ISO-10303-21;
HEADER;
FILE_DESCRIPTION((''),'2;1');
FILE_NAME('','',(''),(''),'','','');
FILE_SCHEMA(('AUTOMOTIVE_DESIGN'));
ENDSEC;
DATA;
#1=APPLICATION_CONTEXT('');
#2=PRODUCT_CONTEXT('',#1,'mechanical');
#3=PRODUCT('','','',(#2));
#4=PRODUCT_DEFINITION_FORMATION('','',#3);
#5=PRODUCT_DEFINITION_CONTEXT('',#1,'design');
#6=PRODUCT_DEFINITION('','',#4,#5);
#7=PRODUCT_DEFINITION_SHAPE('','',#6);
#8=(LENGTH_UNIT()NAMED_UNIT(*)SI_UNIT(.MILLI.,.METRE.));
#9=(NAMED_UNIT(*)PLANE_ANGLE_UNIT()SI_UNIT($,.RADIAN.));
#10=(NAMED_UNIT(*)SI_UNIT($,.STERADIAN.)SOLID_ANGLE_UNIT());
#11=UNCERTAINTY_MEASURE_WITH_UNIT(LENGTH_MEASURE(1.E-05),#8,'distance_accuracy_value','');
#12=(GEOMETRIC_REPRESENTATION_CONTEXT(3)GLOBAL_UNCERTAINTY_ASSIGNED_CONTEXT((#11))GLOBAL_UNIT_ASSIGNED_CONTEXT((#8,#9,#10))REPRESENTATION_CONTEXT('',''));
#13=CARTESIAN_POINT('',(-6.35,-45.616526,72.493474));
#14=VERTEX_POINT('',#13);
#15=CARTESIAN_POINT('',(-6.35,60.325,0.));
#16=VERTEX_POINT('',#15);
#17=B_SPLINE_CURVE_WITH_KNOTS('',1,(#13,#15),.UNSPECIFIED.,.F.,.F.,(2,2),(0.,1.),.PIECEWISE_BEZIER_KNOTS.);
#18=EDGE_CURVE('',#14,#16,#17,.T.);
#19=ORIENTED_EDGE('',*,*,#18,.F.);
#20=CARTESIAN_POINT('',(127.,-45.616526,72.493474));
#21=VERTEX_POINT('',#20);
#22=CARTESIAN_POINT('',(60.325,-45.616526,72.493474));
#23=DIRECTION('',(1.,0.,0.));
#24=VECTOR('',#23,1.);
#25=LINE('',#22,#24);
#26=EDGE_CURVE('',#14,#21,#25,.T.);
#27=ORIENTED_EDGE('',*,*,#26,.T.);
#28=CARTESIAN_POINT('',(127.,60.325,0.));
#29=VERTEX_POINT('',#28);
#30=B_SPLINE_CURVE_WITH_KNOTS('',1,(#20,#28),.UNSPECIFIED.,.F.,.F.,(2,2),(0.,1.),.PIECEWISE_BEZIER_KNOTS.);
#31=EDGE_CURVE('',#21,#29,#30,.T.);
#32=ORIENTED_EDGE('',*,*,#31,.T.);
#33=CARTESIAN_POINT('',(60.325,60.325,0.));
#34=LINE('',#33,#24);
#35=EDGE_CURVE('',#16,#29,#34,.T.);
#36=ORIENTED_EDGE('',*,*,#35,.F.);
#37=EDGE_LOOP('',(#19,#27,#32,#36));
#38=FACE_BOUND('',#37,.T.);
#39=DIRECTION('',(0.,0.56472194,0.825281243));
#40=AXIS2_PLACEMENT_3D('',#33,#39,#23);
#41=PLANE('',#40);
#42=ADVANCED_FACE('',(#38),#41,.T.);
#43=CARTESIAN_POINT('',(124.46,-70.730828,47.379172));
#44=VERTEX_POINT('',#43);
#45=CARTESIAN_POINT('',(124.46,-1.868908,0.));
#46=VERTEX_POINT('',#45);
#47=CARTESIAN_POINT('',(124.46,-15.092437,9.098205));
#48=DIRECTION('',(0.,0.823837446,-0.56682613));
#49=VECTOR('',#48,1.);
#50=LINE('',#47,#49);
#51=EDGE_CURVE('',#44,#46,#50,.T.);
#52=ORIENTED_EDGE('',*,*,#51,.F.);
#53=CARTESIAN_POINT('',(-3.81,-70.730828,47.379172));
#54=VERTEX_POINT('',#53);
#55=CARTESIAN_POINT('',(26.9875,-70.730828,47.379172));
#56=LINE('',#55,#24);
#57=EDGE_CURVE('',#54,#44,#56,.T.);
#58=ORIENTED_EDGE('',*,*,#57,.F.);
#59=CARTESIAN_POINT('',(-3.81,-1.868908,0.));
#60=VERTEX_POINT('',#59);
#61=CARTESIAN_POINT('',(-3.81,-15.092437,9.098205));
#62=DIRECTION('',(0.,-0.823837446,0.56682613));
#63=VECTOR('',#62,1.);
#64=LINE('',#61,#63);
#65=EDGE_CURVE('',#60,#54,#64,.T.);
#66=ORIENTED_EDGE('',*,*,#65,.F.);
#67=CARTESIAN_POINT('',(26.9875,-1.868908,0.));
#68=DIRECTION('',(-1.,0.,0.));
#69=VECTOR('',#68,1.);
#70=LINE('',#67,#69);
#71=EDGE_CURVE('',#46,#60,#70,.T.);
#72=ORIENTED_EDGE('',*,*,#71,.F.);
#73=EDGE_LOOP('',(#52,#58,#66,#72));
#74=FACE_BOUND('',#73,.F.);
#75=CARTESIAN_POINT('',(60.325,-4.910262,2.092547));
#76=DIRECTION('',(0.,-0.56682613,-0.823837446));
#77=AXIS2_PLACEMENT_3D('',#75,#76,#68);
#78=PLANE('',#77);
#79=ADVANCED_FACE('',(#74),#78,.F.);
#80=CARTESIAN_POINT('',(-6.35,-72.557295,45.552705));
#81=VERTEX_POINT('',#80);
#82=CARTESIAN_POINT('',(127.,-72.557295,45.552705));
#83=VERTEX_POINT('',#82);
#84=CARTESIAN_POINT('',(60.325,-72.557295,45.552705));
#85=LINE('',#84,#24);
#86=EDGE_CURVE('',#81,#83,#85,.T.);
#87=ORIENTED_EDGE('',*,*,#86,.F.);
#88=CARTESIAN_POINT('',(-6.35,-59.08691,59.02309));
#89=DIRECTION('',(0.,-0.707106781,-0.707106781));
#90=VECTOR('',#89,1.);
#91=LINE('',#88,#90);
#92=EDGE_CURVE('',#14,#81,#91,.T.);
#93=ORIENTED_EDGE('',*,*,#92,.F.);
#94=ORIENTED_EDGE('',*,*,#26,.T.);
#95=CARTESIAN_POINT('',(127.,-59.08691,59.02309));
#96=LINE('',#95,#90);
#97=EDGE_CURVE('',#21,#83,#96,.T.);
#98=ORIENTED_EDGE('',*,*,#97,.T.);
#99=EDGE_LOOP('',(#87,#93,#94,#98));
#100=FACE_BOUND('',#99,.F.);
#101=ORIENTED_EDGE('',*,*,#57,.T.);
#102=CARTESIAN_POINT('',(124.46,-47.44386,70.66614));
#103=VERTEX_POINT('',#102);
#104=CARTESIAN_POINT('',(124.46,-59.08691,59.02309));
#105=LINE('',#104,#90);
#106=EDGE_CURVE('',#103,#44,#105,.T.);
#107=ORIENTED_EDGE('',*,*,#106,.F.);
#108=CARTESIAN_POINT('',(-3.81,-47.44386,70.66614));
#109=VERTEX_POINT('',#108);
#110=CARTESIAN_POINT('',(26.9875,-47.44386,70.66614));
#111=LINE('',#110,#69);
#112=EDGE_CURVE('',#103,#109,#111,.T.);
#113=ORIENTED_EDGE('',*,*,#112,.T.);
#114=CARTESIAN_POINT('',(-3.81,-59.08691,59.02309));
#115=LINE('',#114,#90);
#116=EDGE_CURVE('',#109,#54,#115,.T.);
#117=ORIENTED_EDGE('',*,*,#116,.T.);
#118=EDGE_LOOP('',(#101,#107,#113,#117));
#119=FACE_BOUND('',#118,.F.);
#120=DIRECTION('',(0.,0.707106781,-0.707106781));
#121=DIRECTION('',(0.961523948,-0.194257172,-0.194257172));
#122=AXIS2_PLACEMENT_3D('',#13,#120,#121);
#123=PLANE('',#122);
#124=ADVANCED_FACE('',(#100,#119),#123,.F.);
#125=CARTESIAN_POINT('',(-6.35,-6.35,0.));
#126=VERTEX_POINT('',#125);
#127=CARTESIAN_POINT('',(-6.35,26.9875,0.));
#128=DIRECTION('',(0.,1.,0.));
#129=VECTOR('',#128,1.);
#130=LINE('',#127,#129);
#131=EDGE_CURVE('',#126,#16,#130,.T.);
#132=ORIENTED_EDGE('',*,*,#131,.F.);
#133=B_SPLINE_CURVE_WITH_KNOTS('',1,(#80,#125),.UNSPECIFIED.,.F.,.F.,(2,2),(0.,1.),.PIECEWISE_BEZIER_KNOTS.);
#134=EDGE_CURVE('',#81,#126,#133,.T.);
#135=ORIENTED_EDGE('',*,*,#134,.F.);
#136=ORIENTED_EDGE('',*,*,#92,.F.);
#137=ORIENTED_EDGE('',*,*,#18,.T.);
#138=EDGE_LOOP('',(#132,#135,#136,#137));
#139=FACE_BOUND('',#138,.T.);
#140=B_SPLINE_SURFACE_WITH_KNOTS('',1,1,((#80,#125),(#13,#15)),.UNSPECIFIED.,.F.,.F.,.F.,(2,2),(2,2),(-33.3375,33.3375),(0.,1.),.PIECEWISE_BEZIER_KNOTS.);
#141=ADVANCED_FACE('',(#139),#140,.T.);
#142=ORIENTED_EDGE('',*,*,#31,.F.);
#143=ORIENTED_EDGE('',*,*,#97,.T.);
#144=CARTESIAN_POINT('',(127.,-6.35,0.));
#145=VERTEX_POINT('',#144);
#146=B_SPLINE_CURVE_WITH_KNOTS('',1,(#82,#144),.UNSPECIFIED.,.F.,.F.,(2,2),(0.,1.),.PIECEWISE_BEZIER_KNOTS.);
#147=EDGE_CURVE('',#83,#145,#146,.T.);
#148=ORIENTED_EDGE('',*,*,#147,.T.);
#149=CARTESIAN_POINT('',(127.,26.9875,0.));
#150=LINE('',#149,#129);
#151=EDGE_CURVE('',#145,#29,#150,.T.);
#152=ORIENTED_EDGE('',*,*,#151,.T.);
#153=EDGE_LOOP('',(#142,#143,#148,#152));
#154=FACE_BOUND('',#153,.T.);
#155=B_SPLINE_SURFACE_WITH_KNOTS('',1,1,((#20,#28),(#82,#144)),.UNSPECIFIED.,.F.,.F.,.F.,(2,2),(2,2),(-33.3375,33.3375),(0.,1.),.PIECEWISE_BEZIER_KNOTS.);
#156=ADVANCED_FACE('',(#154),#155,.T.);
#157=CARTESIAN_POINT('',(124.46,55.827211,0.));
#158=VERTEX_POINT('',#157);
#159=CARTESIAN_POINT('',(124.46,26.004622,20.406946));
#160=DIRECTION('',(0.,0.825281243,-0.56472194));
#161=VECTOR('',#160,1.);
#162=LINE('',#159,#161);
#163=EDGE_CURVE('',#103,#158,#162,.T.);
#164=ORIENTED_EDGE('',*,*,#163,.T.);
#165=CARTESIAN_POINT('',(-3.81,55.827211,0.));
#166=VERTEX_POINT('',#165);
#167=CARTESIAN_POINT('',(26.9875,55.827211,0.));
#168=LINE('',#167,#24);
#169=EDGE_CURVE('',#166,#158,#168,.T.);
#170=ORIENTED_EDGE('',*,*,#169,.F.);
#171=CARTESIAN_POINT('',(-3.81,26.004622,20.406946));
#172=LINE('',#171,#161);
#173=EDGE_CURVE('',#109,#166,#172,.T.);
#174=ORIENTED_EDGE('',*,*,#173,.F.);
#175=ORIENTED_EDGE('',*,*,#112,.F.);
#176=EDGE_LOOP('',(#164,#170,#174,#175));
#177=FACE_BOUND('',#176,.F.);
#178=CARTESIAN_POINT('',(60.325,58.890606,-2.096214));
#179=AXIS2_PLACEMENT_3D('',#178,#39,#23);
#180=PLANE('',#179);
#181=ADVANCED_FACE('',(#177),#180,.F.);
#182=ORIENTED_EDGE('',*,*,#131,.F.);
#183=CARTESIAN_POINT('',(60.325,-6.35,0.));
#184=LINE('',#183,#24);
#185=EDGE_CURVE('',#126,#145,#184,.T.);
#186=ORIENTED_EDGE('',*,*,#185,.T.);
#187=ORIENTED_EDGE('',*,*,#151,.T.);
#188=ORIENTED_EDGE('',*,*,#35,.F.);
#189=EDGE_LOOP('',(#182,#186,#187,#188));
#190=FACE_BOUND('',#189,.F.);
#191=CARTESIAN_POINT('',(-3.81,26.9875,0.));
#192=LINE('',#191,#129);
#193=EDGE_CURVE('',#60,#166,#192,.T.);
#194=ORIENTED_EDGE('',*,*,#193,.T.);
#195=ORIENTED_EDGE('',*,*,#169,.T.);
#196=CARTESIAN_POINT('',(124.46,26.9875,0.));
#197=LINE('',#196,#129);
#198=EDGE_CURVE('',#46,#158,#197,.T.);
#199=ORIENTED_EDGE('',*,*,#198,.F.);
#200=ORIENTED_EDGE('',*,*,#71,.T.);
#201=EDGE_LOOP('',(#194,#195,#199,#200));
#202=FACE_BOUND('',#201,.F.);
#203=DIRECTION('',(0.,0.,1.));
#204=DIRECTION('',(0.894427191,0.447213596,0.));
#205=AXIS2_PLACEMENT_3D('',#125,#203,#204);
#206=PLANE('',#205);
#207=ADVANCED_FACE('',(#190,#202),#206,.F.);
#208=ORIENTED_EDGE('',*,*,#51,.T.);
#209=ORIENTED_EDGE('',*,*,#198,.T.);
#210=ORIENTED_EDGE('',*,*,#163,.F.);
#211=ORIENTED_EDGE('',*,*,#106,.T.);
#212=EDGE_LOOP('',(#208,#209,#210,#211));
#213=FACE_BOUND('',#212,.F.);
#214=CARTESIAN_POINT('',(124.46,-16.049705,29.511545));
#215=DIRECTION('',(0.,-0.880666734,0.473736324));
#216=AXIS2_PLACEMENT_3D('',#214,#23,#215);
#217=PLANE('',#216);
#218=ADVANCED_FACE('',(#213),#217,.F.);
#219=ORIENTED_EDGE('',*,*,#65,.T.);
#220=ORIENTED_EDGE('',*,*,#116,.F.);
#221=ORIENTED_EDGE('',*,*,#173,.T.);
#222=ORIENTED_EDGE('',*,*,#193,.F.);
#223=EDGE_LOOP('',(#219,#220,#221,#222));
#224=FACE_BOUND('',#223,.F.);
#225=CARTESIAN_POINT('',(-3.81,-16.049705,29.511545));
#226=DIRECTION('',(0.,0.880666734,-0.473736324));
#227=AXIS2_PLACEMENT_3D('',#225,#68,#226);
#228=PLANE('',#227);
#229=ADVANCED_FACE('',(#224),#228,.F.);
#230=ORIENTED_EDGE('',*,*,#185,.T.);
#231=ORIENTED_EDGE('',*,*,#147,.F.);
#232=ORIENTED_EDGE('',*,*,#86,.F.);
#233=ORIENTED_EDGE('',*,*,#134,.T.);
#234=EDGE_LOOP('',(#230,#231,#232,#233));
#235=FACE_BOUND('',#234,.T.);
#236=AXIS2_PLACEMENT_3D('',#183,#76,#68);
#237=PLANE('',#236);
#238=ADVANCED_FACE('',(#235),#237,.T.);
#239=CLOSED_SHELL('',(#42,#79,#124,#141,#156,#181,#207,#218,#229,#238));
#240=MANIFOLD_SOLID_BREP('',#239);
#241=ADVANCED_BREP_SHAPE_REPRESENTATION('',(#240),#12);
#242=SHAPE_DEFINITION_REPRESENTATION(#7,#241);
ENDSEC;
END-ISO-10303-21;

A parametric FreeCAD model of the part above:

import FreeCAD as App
import Part
import Sketcher
from FreeCAD import Vector
Q = App.Units.Quantity


def faces_at(feature, points):
    """Names of the faces that lie closest to the given points."""
    faces = feature.Shape.Faces
    near = lambda p: min(range(len(faces)), key=lambda i: faces[i].distToShape(Part.Vertex(*p))[0])
    return sorted({f"Face{near(p) + 1}" for p in points})


def add_polygon(sketch, points):
    """Adds a closed chain of lines whose ends are joined by coincident constraints."""
    first, n = sketch.GeometryCount, len(points)
    for a, b in zip(points, points[1:] + points[:1]):
        sketch.addGeometry(Part.LineSegment(App.Vector(*a, 0), App.Vector(*b, 0)), False)
    for i in range(n):
        sketch.addConstraint(Sketcher.Constraint("Coincident", first + i, 2, first + (i + 1) % n, 1))

doc = App.newDocument("Part")
body = doc.addObject("PartDesign::Body", "Body")

sketch1 = body.newObject("Sketcher::SketchObject", "Sketch")
sketch1.Placement = App.Placement(Vector(0, -59.055, 59.055), App.Rotation(Vector(1, 0, 0), Vector(0, -0.707106781, -0.707106781), Vector(0, 0.707106781, -0.707106781), "ZXY"))
add_polygon(sketch1, [(-6, 19), (-6, -19), (127, -19), (127, 19)])
sketch1.addConstraint(Sketcher.Constraint("Vertical", 0))
sketch1.addConstraint(Sketcher.Constraint("Horizontal", 1))
sketch1.addConstraint(Sketcher.Constraint("Vertical", 2))
sketch1.addConstraint(Sketcher.Constraint("Horizontal", 3))
sketch1.addConstraint(Sketcher.Constraint("DistanceY", 0, 2, 0, 1, Q("1.5 in")))
sketch1.addConstraint(Sketcher.Constraint("DistanceX", -1, 1, 1, 2, Q("5 in")))
sketch1.addConstraint(Sketcher.Constraint("DistanceX", 1, 1, 1, 2, Q("5.25 in")))
sketch1.addConstraint(Sketcher.Constraint("DistanceY", 0, 2, -1, 1, Q("19.004872 mm")))

sketch2 = body.newObject("Sketcher::SketchObject", "Sketch001")
sketch2.AttachmentSupport = (doc.getObject("XY_Plane"), [""])
sketch2.MapMode = "FlatFace"
add_polygon(sketch2, [(-6, 60), (-6, -6), (127, -6), (127, 60)])
sketch2.addConstraint(Sketcher.Constraint("Vertical", 0))
sketch2.addConstraint(Sketcher.Constraint("Horizontal", 1))
sketch2.addConstraint(Sketcher.Constraint("Vertical", 2))
sketch2.addConstraint(Sketcher.Constraint("Horizontal", 3))
sketch2.addConstraint(Sketcher.Constraint("DistanceX", -1, 1, 1, 2, Q("5 in")))
sketch2.addConstraint(Sketcher.Constraint("DistanceX", 1, 1, 1, 2, Q("5.25 in")))
sketch2.addConstraint(Sketcher.Constraint("DistanceY", 0, 2, 0, 1, Q("2.625 in")))
sketch2.addConstraint(Sketcher.Constraint("DistanceY", 0, 2, -1, 1, Q("0.25 in")))

additiveloft = body.newObject("PartDesign::AdditiveLoft", "AdditiveLoft")
additiveloft.Profile = sketch1
additiveloft.Sections = [sketch2]
doc.recompute()

thickness = body.newObject("PartDesign::Thickness", "Thickness")
thickness.Base = (additiveloft, faces_at(additiveloft, [(60.325, 26.988, 0), (60.325, -59.087, 59.023)]))
thickness.Value = Q("0.1 in")
thickness.Reversed = True
thickness.Join = "Arc"

doc.recompute()
